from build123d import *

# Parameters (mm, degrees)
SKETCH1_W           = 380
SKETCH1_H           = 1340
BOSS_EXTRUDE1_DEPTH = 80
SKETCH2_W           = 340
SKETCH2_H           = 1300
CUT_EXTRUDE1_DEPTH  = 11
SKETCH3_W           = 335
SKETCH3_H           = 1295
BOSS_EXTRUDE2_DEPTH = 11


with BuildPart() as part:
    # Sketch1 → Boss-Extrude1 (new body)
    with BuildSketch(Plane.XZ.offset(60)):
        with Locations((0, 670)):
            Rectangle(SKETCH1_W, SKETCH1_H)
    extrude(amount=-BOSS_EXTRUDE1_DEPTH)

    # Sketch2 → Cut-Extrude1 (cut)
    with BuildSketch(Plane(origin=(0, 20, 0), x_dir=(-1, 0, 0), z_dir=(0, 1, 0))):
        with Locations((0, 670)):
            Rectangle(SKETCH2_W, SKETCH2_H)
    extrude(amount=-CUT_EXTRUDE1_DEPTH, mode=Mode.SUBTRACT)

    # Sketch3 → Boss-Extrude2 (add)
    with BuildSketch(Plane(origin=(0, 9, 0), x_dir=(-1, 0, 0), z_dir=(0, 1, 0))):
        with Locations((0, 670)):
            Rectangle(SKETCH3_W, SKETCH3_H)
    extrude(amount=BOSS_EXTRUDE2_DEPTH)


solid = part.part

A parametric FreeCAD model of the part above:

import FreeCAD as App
import Part
import Sketcher

doc = App.newDocument("Part")
params = doc.addObject("Spreadsheet::Sheet", "Params")
for row, (alias, value) in enumerate([
    ("sketch1_width", "380 mm"),
    ("sketch1_height", "1340 mm"),
    ("pad1_length", "80 mm"),
    ("sketch2_width", "340 mm"),
    ("sketch2_height", "1300 mm"),
    ("pocket1_length", "11 mm"),
    ("sketch3_width", "335 mm"),
    ("sketch3_height", "1295 mm"),
    ("pad2_length", "11 mm"),
], start=1):
    params.set(f"A{row}", alias)
    params.set(f"B{row}", "=" + value)
    params.setAlias(f"B{row}", alias)

body = doc.addObject("PartDesign::Body", "Body")

# Sketch on XZ plane
sketch1 = body.newObject("Sketcher::SketchObject", "Sketch")
sketch1.AttachmentSupport = (doc.getObject("XZ_Plane"), [""])
sketch1.MapMode = "FlatFace"
sketch1.AttachmentOffset = App.Placement(App.Vector(0, 0, 60), App.Rotation())
sketch1.addGeometry([
    Part.LineSegment(App.Vector(-190, 1340, 0), App.Vector(-190, 0, 0)),
    Part.LineSegment(App.Vector(-190, 0, 0), App.Vector(190, 0, 0)),
    Part.LineSegment(App.Vector(190, 0, 0), App.Vector(190, 1340, 0)),
    Part.LineSegment(App.Vector(190, 1340, 0), App.Vector(-190, 1340, 0)),
], False)
sketch1.addConstraint([
    Sketcher.Constraint("Coincident", 0, 2, 1, 1),
    Sketcher.Constraint("Coincident", 1, 2, 2, 1),
    Sketcher.Constraint("Coincident", 2, 2, 3, 1),
    Sketcher.Constraint("Coincident", 3, 2, 0, 1),
    Sketcher.Constraint("Vertical", 0),
    Sketcher.Constraint("Horizontal", 1),
    Sketcher.Constraint("Vertical", 2),
    Sketcher.Constraint("Horizontal", 3),
    Sketcher.Constraint("Symmetric", 0, 2, 1, 2, -1, 1),
    Sketcher.Constraint("DistanceX", 1, 1, 1, 2, 380.0),
    Sketcher.Constraint("DistanceY", 0, 2, 0, 1, 1340.0),
])
sketch1.setExpression("Constraints[9]", "Params.sketch1_width")
sketch1.setExpression("Constraints[10]", "Params.sketch1_height")
pad1 = body.newObject("PartDesign::Pad", "Pad")
pad1.Profile = sketch1
pad1.setExpression("Length", "Params.pad1_length")
pad1.Reversed = True

# Sketch on XZ plane
sketch2 = body.newObject("Sketcher::SketchObject", "Sketch001")
sketch2.AttachmentSupport = (doc.getObject("XZ_Plane"), [""])
sketch2.MapMode = "FlatFace"
sketch2.AttachmentOffset = App.Placement(App.Vector(0, 0, -20), App.Rotation())
sketch2.addGeometry([
    Part.LineSegment(App.Vector(170, 1320, 0), App.Vector(170, 20, 0)),
    Part.LineSegment(App.Vector(170, 20, 0), App.Vector(-170, 20, 0)),
    Part.LineSegment(App.Vector(-170, 20, 0), App.Vector(-170, 1320, 0)),
    Part.LineSegment(App.Vector(-170, 1320, 0), App.Vector(170, 1320, 0)),
], False)
sketch2.addConstraint([
    Sketcher.Constraint("Coincident", 0, 2, 1, 1),
    Sketcher.Constraint("Coincident", 1, 2, 2, 1),
    Sketcher.Constraint("Coincident", 2, 2, 3, 1),
    Sketcher.Constraint("Coincident", 3, 2, 0, 1),
    Sketcher.Constraint("Vertical", 0),
    Sketcher.Constraint("Horizontal", 1),
    Sketcher.Constraint("Vertical", 2),
    Sketcher.Constraint("Horizontal", 3),
    Sketcher.Constraint("DistanceX", 1, 2, 1, 1, 340.0),
    Sketcher.Constraint("DistanceY", 0, 2, 0, 1, 1300.0),
    Sketcher.Constraint("DistanceX", -1, 1, 0, 2, 170.0),
    Sketcher.Constraint("DistanceY", -1, 1, 0, 2, 20.0),
])
sketch2.setExpression("Constraints[8]", "Params.sketch2_width")
sketch2.setExpression("Constraints[9]", "Params.sketch2_height")
pocket1 = body.newObject("PartDesign::Pocket", "Pocket")
pocket1.Profile = sketch2
pocket1.setExpression("Length", "Params.pocket1_length")
pocket1.Reversed = True

# Sketch on XZ plane
sketch3 = body.newObject("Sketcher::SketchObject", "Sketch002")
sketch3.AttachmentSupport = (doc.getObject("XZ_Plane"), [""])
sketch3.MapMode = "FlatFace"
sketch3.AttachmentOffset = App.Placement(App.Vector(0, 0, -9), App.Rotation())
sketch3.addGeometry([
    Part.LineSegment(App.Vector(167.5, 1317.5, 0), App.Vector(167.5, 22.5, 0)),
    Part.LineSegment(App.Vector(167.5, 22.5, 0), App.Vector(-167.5, 22.5, 0)),
    Part.LineSegment(App.Vector(-167.5, 22.5, 0), App.Vector(-167.5, 1317.5, 0)),
    Part.LineSegment(App.Vector(-167.5, 1317.5, 0), App.Vector(167.5, 1317.5, 0)),
], False)
sketch3.addConstraint([
    Sketcher.Constraint("Coincident", 0, 2, 1, 1),
    Sketcher.Constraint("Coincident", 1, 2, 2, 1),
    Sketcher.Constraint("Coincident", 2, 2, 3, 1),
    Sketcher.Constraint("Coincident", 3, 2, 0, 1),
    Sketcher.Constraint("Vertical", 0),
    Sketcher.Constraint("Horizontal", 1),
    Sketcher.Constraint("Vertical", 2),
    Sketcher.Constraint("Horizontal", 3),
    Sketcher.Constraint("DistanceX", 1, 2, 1, 1, 335.0),
    Sketcher.Constraint("DistanceY", 0, 2, 0, 1, 1295.0),
    Sketcher.Constraint("DistanceX", -1, 1, 0, 2, 167.5),
    Sketcher.Constraint("DistanceY", -1, 1, 0, 2, 22.5),
])
sketch3.setExpression("Constraints[8]", "Params.sketch3_width")
sketch3.setExpression("Constraints[9]", "Params.sketch3_height")
pad2 = body.newObject("PartDesign::Pad", "Pad001")
pad2.Profile = sketch3
pad2.setExpression("Length", "Params.pad2_length")
pad2.Reversed = True

doc.recompute()
